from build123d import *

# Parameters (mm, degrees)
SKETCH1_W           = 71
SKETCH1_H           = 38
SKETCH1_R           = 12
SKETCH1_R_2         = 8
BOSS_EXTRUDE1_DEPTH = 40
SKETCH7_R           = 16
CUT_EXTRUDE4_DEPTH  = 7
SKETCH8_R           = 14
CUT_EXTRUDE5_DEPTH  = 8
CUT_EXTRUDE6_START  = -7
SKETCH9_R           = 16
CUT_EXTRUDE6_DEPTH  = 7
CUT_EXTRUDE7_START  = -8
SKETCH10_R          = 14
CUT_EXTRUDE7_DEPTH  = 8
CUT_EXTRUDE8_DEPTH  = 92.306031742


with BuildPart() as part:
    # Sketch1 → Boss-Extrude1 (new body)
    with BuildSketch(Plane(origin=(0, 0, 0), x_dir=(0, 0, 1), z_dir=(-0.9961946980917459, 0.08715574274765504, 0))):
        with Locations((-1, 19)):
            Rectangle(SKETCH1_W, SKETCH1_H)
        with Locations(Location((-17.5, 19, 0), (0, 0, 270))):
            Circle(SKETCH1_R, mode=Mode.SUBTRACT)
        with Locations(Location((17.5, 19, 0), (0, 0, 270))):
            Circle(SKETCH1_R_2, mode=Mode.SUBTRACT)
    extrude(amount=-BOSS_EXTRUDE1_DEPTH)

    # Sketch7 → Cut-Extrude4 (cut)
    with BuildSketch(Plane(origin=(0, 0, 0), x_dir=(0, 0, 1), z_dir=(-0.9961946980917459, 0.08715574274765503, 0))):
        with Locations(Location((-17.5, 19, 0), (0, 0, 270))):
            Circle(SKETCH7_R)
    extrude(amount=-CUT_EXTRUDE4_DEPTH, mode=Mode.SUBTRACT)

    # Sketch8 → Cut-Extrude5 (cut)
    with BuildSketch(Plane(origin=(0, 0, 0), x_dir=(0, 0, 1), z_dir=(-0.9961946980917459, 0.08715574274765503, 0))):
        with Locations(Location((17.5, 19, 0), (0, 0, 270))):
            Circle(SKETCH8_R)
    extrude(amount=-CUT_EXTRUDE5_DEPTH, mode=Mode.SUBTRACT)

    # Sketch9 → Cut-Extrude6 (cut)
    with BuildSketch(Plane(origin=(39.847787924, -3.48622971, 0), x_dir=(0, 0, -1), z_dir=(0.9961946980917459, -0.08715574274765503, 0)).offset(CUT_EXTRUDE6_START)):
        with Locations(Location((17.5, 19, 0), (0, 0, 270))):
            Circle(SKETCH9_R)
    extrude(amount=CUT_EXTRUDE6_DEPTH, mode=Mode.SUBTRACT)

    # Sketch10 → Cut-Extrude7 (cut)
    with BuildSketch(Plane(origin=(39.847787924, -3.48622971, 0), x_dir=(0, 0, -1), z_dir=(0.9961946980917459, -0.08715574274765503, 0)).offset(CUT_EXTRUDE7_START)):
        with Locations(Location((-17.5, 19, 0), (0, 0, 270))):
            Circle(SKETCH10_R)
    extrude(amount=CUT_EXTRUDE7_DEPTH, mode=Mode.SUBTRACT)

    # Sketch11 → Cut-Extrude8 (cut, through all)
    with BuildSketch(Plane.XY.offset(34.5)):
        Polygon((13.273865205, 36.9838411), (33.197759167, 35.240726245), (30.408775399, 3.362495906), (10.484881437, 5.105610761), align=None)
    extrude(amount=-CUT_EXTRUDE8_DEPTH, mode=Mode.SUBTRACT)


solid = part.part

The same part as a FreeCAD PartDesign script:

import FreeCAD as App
import Part
import Sketcher
from FreeCAD import Vector
Q = App.Units.Quantity

doc = App.newDocument("Part")
body = doc.addObject("PartDesign::Body", "Body")

sketch1 = doc.addObject("Sketcher::SketchObject", "Sketch")
body.addObject(sketch1)
sketch1.Placement = App.Placement(Vector(0, 0, 0), App.Rotation(Vector(0, 0, 1), Vector(0.087155743, 0.996194698, 0), Vector(-0.996194698, 0.087155743, 0), "ZXY"))
sketch1.addGeometry([
    Part.LineSegment(Vector(-36, 38, 0), Vector(-36, 0, 0)),
    Part.LineSegment(Vector(-36, 0, 0), Vector(34, 0, 0)),
    Part.LineSegment(Vector(34, 0, 0), Vector(34, 38, 0)),
    Part.LineSegment(Vector(34, 38, 0), Vector(-36, 38, 0)),
    Part.Circle(Vector(-18, 19, 0), Vector(0, 0, 1), 12),
    Part.Circle(Vector(18, 19, 0), Vector(0, 0, 1), 8),
], False)
sketch1.addConstraint([
    Sketcher.Constraint("Coincident", 0, 2, 1, 1),
    Sketcher.Constraint("Coincident", 1, 2, 2, 1),
    Sketcher.Constraint("Coincident", 2, 2, 3, 1),
    Sketcher.Constraint("Coincident", 3, 2, 0, 1),
    Sketcher.Constraint("Vertical", 0),
    Sketcher.Constraint("Horizontal", 1),
    Sketcher.Constraint("Vertical", 2),
    Sketcher.Constraint("Horizontal", 3),
    Sketcher.Constraint("Symmetric", 4, 3, 5, 3, -2),
    Sketcher.Constraint("PointOnObject", 0, 2, -1),
    Sketcher.Constraint("Diameter", 4, Q("24 mm")),
    Sketcher.Constraint("Diameter", 5, Q("16 mm")),
    Sketcher.Constraint("DistanceX", 1, 1, 1, 2, Q("71 mm")),
    Sketcher.Constraint("DistanceY", 0, 2, 0, 1, Q("38 mm")),
    Sketcher.Constraint("DistanceY", -1, 1, 4, 3, Q("19 mm")),
    Sketcher.Constraint("DistanceX", 4, 3, 5, 3, Q("35 mm")),
    Sketcher.Constraint("DistanceX", 0, 2, 4, 3, Q("19 mm")),
])
pad1 = doc.addObject("PartDesign::Pad", "Pad")
body.addObject(pad1)
pad1.Profile = sketch1
pad1.Length = 40
pad1.Reversed = True

sketch2 = doc.addObject("Sketcher::SketchObject", "Sketch001")
body.addObject(sketch2)
sketch2.Placement = App.Placement(Vector(0, 0, 0), App.Rotation(Vector(0, 0, 1), Vector(0.087155743, 0.996194698, 0), Vector(-0.996194698, 0.087155743, 0), "ZXY"))
sketch2.addGeometry(Part.Circle(Vector(-18, 19, 0), Vector(0, 0, 1), 16), False)
sketch2.addConstraint([
    Sketcher.Constraint("Diameter", 0, Q("32 mm")),
    Sketcher.Constraint("DistanceY", -1, 1, 0, 3, Q("19 mm")),
    Sketcher.Constraint("DistanceX", 0, 3, -1, 1, Q("17.5 mm")),
])
pocket1 = doc.addObject("PartDesign::Pocket", "Pocket")
body.addObject(pocket1)
pocket1.Profile = sketch2
pocket1.Length = 7

sketch3 = doc.addObject("Sketcher::SketchObject", "Sketch002")
body.addObject(sketch3)
sketch3.Placement = App.Placement(Vector(0, 0, 0), App.Rotation(Vector(0, 0, 1), Vector(0.087155743, 0.996194698, 0), Vector(-0.996194698, 0.087155743, 0), "ZXY"))
sketch3.addGeometry(Part.Circle(Vector(18, 19, 0), Vector(0, 0, 1), 14), False)
sketch3.addConstraint([
    Sketcher.Constraint("Diameter", 0, Q("28 mm")),
    Sketcher.Constraint("DistanceY", -1, 1, 0, 3, Q("19 mm")),
    Sketcher.Constraint("DistanceX", -1, 1, 0, 3, Q("17.5 mm")),
])
pocket2 = doc.addObject("PartDesign::Pocket", "Pocket001")
body.addObject(pocket2)
pocket2.Profile = sketch3
pocket2.Length = 8

sketch4 = doc.addObject("Sketcher::SketchObject", "Sketch003")
body.addObject(sketch4)
sketch4.Placement = App.Placement(Vector(32.874425, -2.87614, 0), App.Rotation(Vector(0, 0, -1), Vector(0.087155743, 0.996194698, 0), Vector(0.996194698, -0.087155743, 0), "ZXY"))
sketch4.addGeometry(Part.Circle(Vector(18, 19, 0), Vector(0, 0, 1), 16), False)
sketch4.addConstraint([
    Sketcher.Constraint("Diameter", 0, Q("32 mm")),
    Sketcher.Constraint("DistanceY", -1, 1, 0, 3, Q("19 mm")),
    Sketcher.Constraint("DistanceX", -1, 1, 0, 3, Q("17.5 mm")),
])
pocket3 = doc.addObject("PartDesign::Pocket", "Pocket002")
body.addObject(pocket3)
pocket3.Profile = sketch4
pocket3.Length = 7
pocket3.Reversed = True

sketch5 = doc.addObject("Sketcher::SketchObject", "Sketch004")
body.addObject(sketch5)
sketch5.Placement = App.Placement(Vector(31.87823, -2.788984, 0), App.Rotation(Vector(0, 0, -1), Vector(0.087155743, 0.996194698, 0), Vector(0.996194698, -0.087155743, 0), "ZXY"))
sketch5.addGeometry(Part.Circle(Vector(-18, 19, 0), Vector(0, 0, 1), 14), False)
sketch5.addConstraint([
    Sketcher.Constraint("Diameter", 0, Q("28 mm")),
    Sketcher.Constraint("DistanceY", -1, 1, 0, 3, Q("19 mm")),
    Sketcher.Constraint("DistanceX", 0, 3, -1, 1, Q("17.5 mm")),
])
pocket4 = doc.addObject("PartDesign::Pocket", "Pocket003")
body.addObject(pocket4)
pocket4.Profile = sketch5
pocket4.Length = 8
pocket4.Reversed = True

sketch6 = doc.addObject("Sketcher::SketchObject", "Sketch005")
body.addObject(sketch6)
sketch6.AttachmentSupport = (doc.XY_Plane, [""])
sketch6.MapMode = "FlatFace"
sketch6.AttachmentOffset = App.Placement(Vector(0, 0, 34.5), App.Rotation())
sketch6.addGeometry([
    Part.LineSegment(Vector(33, 35, 0), Vector(13, 37, 0)),
    Part.LineSegment(Vector(13, 37, 0), Vector(10, 5, 0)),
    Part.LineSegment(Vector(10, 5, 0), Vector(30, 3, 0)),
    Part.LineSegment(Vector(30, 3, 0), Vector(33, 35, 0)),
], False)
sketch6.addConstraint([
    Sketcher.Constraint("Coincident", 0, 2, 1, 1),
    Sketcher.Constraint("Coincident", 1, 2, 2, 1),
    Sketcher.Constraint("Coincident", 2, 2, 3, 1),
    Sketcher.Constraint("Coincident", 3, 2, 0, 1),
    Sketcher.Constraint("Perpendicular", 0, 1),
    Sketcher.Constraint("Perpendicular", 1, 2),
    Sketcher.Constraint("Perpendicular", 2, 3),
    Sketcher.Constraint("Angle", 0, Q("175 deg")),
    Sketcher.Constraint("Distance", 0, Q("20 mm")),
    Sketcher.Constraint("Distance", 1, Q("32 mm")),
    Sketcher.Constraint("DistanceY", -1, 1, 0, 2, Q("36.983841 mm")),
    Sketcher.Constraint("DistanceX", -1, 1, 1, 2, Q("10.484881 mm")),
])
pocket5 = doc.addObject("PartDesign::Pocket", "Pocket004")
body.addObject(pocket5)
pocket5.Profile = sketch6
pocket5.Type = "ThroughAll"

doc.recompute()
